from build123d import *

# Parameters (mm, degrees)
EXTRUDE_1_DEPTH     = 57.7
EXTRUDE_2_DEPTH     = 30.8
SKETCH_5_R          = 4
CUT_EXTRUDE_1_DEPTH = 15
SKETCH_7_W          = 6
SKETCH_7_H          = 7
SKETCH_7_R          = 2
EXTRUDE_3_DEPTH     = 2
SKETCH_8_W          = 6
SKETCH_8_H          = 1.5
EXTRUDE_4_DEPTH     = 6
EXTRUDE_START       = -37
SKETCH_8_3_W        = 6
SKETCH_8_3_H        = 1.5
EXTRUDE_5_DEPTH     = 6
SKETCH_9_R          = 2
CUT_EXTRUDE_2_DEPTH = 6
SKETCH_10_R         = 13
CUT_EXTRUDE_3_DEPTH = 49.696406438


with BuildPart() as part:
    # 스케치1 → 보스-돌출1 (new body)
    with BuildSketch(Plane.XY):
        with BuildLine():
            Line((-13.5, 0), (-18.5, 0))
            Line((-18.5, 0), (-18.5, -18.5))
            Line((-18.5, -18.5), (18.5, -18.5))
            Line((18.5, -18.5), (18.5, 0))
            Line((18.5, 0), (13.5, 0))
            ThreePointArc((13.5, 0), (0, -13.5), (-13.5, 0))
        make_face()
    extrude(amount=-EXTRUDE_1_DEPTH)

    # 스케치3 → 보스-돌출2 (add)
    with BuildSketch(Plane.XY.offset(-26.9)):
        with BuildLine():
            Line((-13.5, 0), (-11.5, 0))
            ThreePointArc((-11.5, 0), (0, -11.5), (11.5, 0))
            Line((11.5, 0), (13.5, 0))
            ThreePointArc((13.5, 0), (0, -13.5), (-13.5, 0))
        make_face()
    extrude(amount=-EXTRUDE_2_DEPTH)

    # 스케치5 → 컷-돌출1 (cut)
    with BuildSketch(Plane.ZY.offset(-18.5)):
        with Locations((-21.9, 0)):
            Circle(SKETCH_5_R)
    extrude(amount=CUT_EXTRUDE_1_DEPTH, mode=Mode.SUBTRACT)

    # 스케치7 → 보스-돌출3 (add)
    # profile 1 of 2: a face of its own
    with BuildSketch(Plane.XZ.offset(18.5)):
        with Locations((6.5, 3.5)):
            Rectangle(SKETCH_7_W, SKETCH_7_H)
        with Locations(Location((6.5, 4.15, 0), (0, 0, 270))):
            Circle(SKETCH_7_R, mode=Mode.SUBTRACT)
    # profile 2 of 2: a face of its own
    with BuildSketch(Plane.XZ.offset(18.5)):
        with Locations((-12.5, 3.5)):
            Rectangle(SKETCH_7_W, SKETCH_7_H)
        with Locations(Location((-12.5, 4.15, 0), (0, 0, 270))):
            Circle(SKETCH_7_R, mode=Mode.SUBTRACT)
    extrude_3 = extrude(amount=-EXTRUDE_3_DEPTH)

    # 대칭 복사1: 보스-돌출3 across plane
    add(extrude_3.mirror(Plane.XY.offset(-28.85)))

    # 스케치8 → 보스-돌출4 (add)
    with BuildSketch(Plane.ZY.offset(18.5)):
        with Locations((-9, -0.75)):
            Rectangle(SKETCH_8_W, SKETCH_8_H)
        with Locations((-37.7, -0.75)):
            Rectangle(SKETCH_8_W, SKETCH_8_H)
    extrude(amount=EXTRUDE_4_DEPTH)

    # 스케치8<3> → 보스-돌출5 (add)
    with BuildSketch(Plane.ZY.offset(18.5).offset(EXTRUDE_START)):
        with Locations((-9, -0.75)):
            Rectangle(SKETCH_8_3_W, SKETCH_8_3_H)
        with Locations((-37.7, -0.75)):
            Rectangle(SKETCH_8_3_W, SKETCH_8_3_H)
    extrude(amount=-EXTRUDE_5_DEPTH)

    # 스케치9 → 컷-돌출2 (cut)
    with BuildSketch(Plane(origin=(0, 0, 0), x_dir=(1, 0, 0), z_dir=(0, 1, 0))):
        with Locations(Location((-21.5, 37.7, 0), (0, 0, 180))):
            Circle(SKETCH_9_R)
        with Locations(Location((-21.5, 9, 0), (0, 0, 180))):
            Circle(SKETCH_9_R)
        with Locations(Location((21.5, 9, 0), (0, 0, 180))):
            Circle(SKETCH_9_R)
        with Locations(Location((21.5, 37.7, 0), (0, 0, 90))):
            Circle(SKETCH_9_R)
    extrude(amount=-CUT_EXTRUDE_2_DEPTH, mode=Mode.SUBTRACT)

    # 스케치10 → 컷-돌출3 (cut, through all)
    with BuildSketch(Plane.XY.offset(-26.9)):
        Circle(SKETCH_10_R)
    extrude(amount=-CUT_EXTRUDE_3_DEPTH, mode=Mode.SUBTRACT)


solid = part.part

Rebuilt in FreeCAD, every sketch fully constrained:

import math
import FreeCAD as App
import Part
import Sketcher
from FreeCAD import Vector
Q = App.Units.Quantity

doc = App.newDocument("Part")
body = doc.addObject("PartDesign::Body", "Body")

# Sketch on XY plane
sketch1 = body.newObject("Sketcher::SketchObject", "Sketch")
sketch1.AttachmentSupport = (doc.getObject("XY_Plane"), [""])
sketch1.MapMode = "FlatFace"
sketch1.addGeometry(Part.LineSegment(Vector(-14, 0, 0), Vector(-18, 0, 0)), False)
sketch1.addGeometry(Part.LineSegment(Vector(-18, 0, 0), Vector(-18, -18, 0)), False)
sketch1.addGeometry(Part.LineSegment(Vector(-18, -18, 0), Vector(18, -18, 0)), False)
sketch1.addGeometry(Part.LineSegment(Vector(18, -18, 0), Vector(18, 0, 0)), False)
sketch1.addGeometry(Part.LineSegment(Vector(18, 0, 0), Vector(14, 0, 0)), False)
sketch1.addGeometry(Part.ArcOfCircle(Part.Circle(Vector(0, 0, 0), Vector(0, 0, 1), 14), math.radians(180), math.radians(360)), False)
sketch1.addConstraint(Sketcher.Constraint("Coincident", 0, 2, 1, 1))
sketch1.addConstraint(Sketcher.Constraint("Coincident", 1, 2, 2, 1))
sketch1.addConstraint(Sketcher.Constraint("Coincident", 2, 2, 3, 1))
sketch1.addConstraint(Sketcher.Constraint("Coincident", 3, 2, 4, 1))
sketch1.addConstraint(Sketcher.Constraint("Coincident", 4, 2, 5, 2))
sketch1.addConstraint(Sketcher.Constraint("Coincident", 5, 1, 0, 1))
sketch1.addConstraint(Sketcher.Constraint("Horizontal", 0))
sketch1.addConstraint(Sketcher.Constraint("Vertical", 1))
sketch1.addConstraint(Sketcher.Constraint("Horizontal", 2))
sketch1.addConstraint(Sketcher.Constraint("Vertical", 3))
sketch1.addConstraint(Sketcher.Constraint("Horizontal", 4))
sketch1.addConstraint(Sketcher.Constraint("Coincident", 5, 3, -1, 1))
sketch1.addConstraint(Sketcher.Constraint("Symmetric", 0, 2, 3, 2, -1, 1))
sketch1.addConstraint(Sketcher.Constraint("PointOnObject", 0, 2, -1))
sketch1.addConstraint(Sketcher.Constraint("Radius", 5, Q("13.5 mm")))
sketch1.addConstraint(Sketcher.Constraint("DistanceX", 0, 2, 0, 1, Q("5 mm")))
sketch1.addConstraint(Sketcher.Constraint("DistanceY", 1, 2, 1, 1, Q("18.5 mm")))
pad1 = body.newObject("PartDesign::Pad", "Pad")
pad1.Profile = sketch1
pad1.Length = 57.7
pad1.Reversed = True

# Sketch on XY plane
sketch2 = body.newObject("Sketcher::SketchObject", "Sketch001")
sketch2.AttachmentSupport = (doc.getObject("XY_Plane"), [""])
sketch2.MapMode = "FlatFace"
sketch2.AttachmentOffset = App.Placement(Vector(0, 0, -26.9), App.Rotation())
sketch2.addGeometry(Part.LineSegment(Vector(-11.5, 0, 0), Vector(-13.5, 0, 0)), False)
sketch2.addGeometry(Part.ArcOfCircle(Part.Circle(Vector(0, 0, 0), Vector(0, 0, 1), 13.5), math.radians(180), math.radians(360)), False)
sketch2.addGeometry(Part.LineSegment(Vector(13.5, 0, 0), Vector(11.5, 0, 0)), False)
sketch2.addGeometry(Part.ArcOfCircle(Part.Circle(Vector(0, 0, 0), Vector(0, 0, 1), 11.5), math.radians(180), math.radians(360)), False)
sketch2.addConstraint(Sketcher.Constraint("Coincident", 0, 2, 1, 1))
sketch2.addConstraint(Sketcher.Constraint("Coincident", 1, 2, 2, 1))
sketch2.addConstraint(Sketcher.Constraint("Coincident", 2, 2, 3, 2))
sketch2.addConstraint(Sketcher.Constraint("Coincident", 3, 1, 0, 1))
sketch2.addConstraint(Sketcher.Constraint("Horizontal", 0))
sketch2.addConstraint(Sketcher.Constraint("Horizontal", 2))
sketch2.addConstraint(Sketcher.Constraint("Coincident", 1, 3, -1, 1))
sketch2.addConstraint(Sketcher.Constraint("Coincident", 3, 3, -1, 1))
sketch2.addConstraint(Sketcher.Constraint("PointOnObject", 0, 2, -1))
sketch2.addConstraint(Sketcher.Constraint("PointOnObject", 1, 2, -1))
sketch2.addConstraint(Sketcher.Constraint("Radius", 1, Q("13.5 mm")))
sketch2.addConstraint(Sketcher.Constraint("Radius", 3, Q("11.5 mm")))
pad2 = body.newObject("PartDesign::Pad", "Pad001")
pad2.Profile = sketch2
pad2.Length = 30.8
pad2.Reversed = True

# Sketch on YZ plane
sketch3 = body.newObject("Sketcher::SketchObject", "Sketch002")
sketch3.AttachmentSupport = (doc.getObject("YZ_Plane"), [""])
sketch3.MapMode = "FlatFace"
sketch3.AttachmentOffset = App.Placement(Vector(0, 0, 18.5), App.Rotation())
sketch3.addGeometry(Part.Circle(Vector(0, -21.9, 0), Vector(0, 0, 1), 4), False)
sketch3.addConstraint(Sketcher.Constraint("PointOnObject", 0, 3, -2))
sketch3.addConstraint(Sketcher.Constraint("Diameter", 0, Q("8 mm")))
sketch3.addConstraint(Sketcher.Constraint("DistanceY", 0, 3, -1, 1, Q("21.9 mm")))
pocket1 = body.newObject("PartDesign::Pocket", "Pocket")
pocket1.Profile = sketch3
pocket1.Length = 15

# Sketch on XZ plane
sketch4 = body.newObject("Sketcher::SketchObject", "Sketch003")
sketch4.AttachmentSupport = (doc.getObject("XZ_Plane"), [""])
sketch4.MapMode = "FlatFace"
sketch4.AttachmentOffset = App.Placement(Vector(0, 0, 18.5), App.Rotation())
sketch4.addGeometry(Part.LineSegment(Vector(3.5, 7, 0), Vector(3.5, 0, 0)), False)
sketch4.addGeometry(Part.LineSegment(Vector(3.5, 0, 0), Vector(9.5, 0, 0)), False)
sketch4.addGeometry(Part.LineSegment(Vector(9.5, 0, 0), Vector(9.5, 7, 0)), False)
sketch4.addGeometry(Part.LineSegment(Vector(9.5, 7, 0), Vector(3.5, 7, 0)), False)
sketch4.addGeometry(Part.Circle(Vector(6.5, 4.2, 0), Vector(0, 0, 1), 2), False)
sketch4.addGeometry(Part.LineSegment(Vector(-15.5, 7, 0), Vector(-15.5, 0, 0)), False)
sketch4.addGeometry(Part.LineSegment(Vector(-15.5, 0, 0), Vector(-9.5, 0, 0)), False)
sketch4.addGeometry(Part.LineSegment(Vector(-9.5, 0, 0), Vector(-9.5, 7, 0)), False)
sketch4.addGeometry(Part.LineSegment(Vector(-9.5, 7, 0), Vector(-15.5, 7, 0)), False)
sketch4.addGeometry(Part.Circle(Vector(-12.5, 4.2, 0), Vector(0, 0, 1), 2), False)
sketch4.addConstraint(Sketcher.Constraint("Coincident", 0, 2, 1, 1))
sketch4.addConstraint(Sketcher.Constraint("Coincident", 1, 2, 2, 1))
sketch4.addConstraint(Sketcher.Constraint("Coincident", 2, 2, 3, 1))
sketch4.addConstraint(Sketcher.Constraint("Coincident", 3, 2, 0, 1))
sketch4.addConstraint(Sketcher.Constraint("Coincident", 5, 2, 6, 1))
sketch4.addConstraint(Sketcher.Constraint("Coincident", 6, 2, 7, 1))
sketch4.addConstraint(Sketcher.Constraint("Coincident", 7, 2, 8, 1))
sketch4.addConstraint(Sketcher.Constraint("Coincident", 8, 2, 5, 1))
sketch4.addConstraint(Sketcher.Constraint("Vertical", 0))
sketch4.addConstraint(Sketcher.Constraint("Horizontal", 1))
sketch4.addConstraint(Sketcher.Constraint("Vertical", 2))
sketch4.addConstraint(Sketcher.Constraint("Horizontal", 3))
sketch4.addConstraint(Sketcher.Constraint("Vertical", 5))
sketch4.addConstraint(Sketcher.Constraint("Horizontal", 6))
sketch4.addConstraint(Sketcher.Constraint("Vertical", 7))
sketch4.addConstraint(Sketcher.Constraint("Horizontal", 8))
sketch4.addConstraint(Sketcher.Constraint("Equal", 4, 9))
sketch4.addConstraint(Sketcher.Constraint("Symmetric", 1, 2, 6, 2, -1, 1))
sketch4.addConstraint(Sketcher.Constraint("PointOnObject", 0, 2, -1))
sketch4.addConstraint(Sketcher.Constraint("Horizontal", 4, 3, 9, 3))
sketch4.addConstraint(Sketcher.Constraint("Horizontal", 3, 2, 7, 2))
sketch4.addConstraint(Sketcher.Constraint("Equal", 3, 6))
sketch4.addConstraint(Sketcher.Constraint("Diameter", 4, Q("4 mm")))
sketch4.addConstraint(Sketcher.Constraint("DistanceX", 1, 1, 1, 2, Q("6 mm")))
sketch4.addConstraint(Sketcher.Constraint("DistanceY", 0, 2, 0, 1, Q("7 mm")))
sketch4.addConstraint(Sketcher.Constraint("DistanceX", 9, 3, 4, 3, Q("19 mm")))
sketch4.addConstraint(Sketcher.Constraint("DistanceX", 0, 2, 4, 3, Q("3 mm")))
sketch4.addConstraint(Sketcher.Constraint("DistanceX", 5, 2, 9, 3, Q("3 mm")))
sketch4.addConstraint(Sketcher.Constraint("DistanceY", -1, 1, 4, 3, Q("4.15 mm")))
pad3 = body.newObject("PartDesign::Pad", "Pad002")
pad3.Profile = sketch4
pad3.Length = 2
pad3.Reversed = True
doc.recompute()

datumplane = body.newObject("PartDesign::Plane", "DatumPlane")
datumplane.AttachmentSupport = (doc.getObject("XY_Plane"), [""])
datumplane.MapMode = "FlatFace"
datumplane.AttachmentOffset = App.Placement(Vector(0, 0, -28.85), App.Rotation())
mirrored = body.newObject("PartDesign::Mirrored", "Mirrored")
mirrored.Originals = [pad3]
mirrored.MirrorPlane = (datumplane, [""])
body.Tip = mirrored

# Sketch on YZ plane
sketch5 = body.newObject("Sketcher::SketchObject", "Sketch004")
sketch5.AttachmentSupport = (doc.getObject("YZ_Plane"), [""])
sketch5.MapMode = "FlatFace"
sketch5.AttachmentOffset = App.Placement(Vector(0, 0, -18.5), App.Rotation())
sketch5.addGeometry(Part.LineSegment(Vector(0, -12, 0), Vector(-1.5, -12, 0)), False)
sketch5.addGeometry(Part.LineSegment(Vector(-1.5, -12, 0), Vector(-1.5, -6, 0)), False)
sketch5.addGeometry(Part.LineSegment(Vector(-1.5, -6, 0), Vector(0, -6, 0)), False)
sketch5.addGeometry(Part.LineSegment(Vector(0, -6, 0), Vector(0, -12, 0)), False)
sketch5.addGeometry(Part.LineSegment(Vector(0, -40.7, 0), Vector(-1.5, -40.7, 0)), False)
sketch5.addGeometry(Part.LineSegment(Vector(-1.5, -40.7, 0), Vector(-1.5, -34.7, 0)), False)
sketch5.addGeometry(Part.LineSegment(Vector(-1.5, -34.7, 0), Vector(0, -34.7, 0)), False)
sketch5.addGeometry(Part.LineSegment(Vector(0, -34.7, 0), Vector(0, -40.7, 0)), False)
sketch5.addConstraint(Sketcher.Constraint("Coincident", 0, 2, 1, 1))
sketch5.addConstraint(Sketcher.Constraint("Coincident", 1, 2, 2, 1))
sketch5.addConstraint(Sketcher.Constraint("Coincident", 2, 2, 3, 1))
sketch5.addConstraint(Sketcher.Constraint("Coincident", 3, 2, 0, 1))
sketch5.addConstraint(Sketcher.Constraint("Coincident", 4, 2, 5, 1))
sketch5.addConstraint(Sketcher.Constraint("Coincident", 5, 2, 6, 1))
sketch5.addConstraint(Sketcher.Constraint("Coincident", 6, 2, 7, 1))
sketch5.addConstraint(Sketcher.Constraint("Coincident", 7, 2, 4, 1))
sketch5.addConstraint(Sketcher.Constraint("Horizontal", 0))
sketch5.addConstraint(Sketcher.Constraint("Vertical", 1))
sketch5.addConstraint(Sketcher.Constraint("Horizontal", 2))
sketch5.addConstraint(Sketcher.Constraint("Vertical", 3))
sketch5.addConstraint(Sketcher.Constraint("Horizontal", 4))
sketch5.addConstraint(Sketcher.Constraint("Vertical", 5))
sketch5.addConstraint(Sketcher.Constraint("Horizontal", 6))
sketch5.addConstraint(Sketcher.Constraint("Vertical", 7))
sketch5.addConstraint(Sketcher.Constraint("PointOnObject", 2, 2, -2))
sketch5.addConstraint(Sketcher.Constraint("PointOnObject", 6, 2, -2))
sketch5.addConstraint(Sketcher.Constraint("Vertical", 1, 2, 4, 2))
sketch5.addConstraint(Sketcher.Constraint("Equal", 3, 5))
sketch5.addConstraint(Sketcher.Constraint("DistanceY", 1, 1, 1, 2, Q("6 mm")))
sketch5.addConstraint(Sketcher.Constraint("DistanceX", 0, 2, 0, 1, Q("1.5 mm")))
sketch5.addConstraint(Sketcher.Constraint("DistanceY", 0, 2, -1, 1, Q("12 mm")))
sketch5.addConstraint(Sketcher.Constraint("DistanceY", 4, 2, -1, 1, Q("40.7 mm")))
pad4 = body.newObject("PartDesign::Pad", "Pad003")
pad4.Profile = sketch5
pad4.Length = 6
pad4.Reversed = True

# Sketch on YZ plane
sketch6 = body.newObject("Sketcher::SketchObject", "Sketch005")
sketch6.AttachmentSupport = (doc.getObject("YZ_Plane"), [""])
sketch6.MapMode = "FlatFace"
sketch6.AttachmentOffset = App.Placement(Vector(0, 0, 18.5), App.Rotation())
sketch6.addGeometry(Part.LineSegment(Vector(0, -12, 0), Vector(-1.5, -12, 0)), False)
sketch6.addGeometry(Part.LineSegment(Vector(-1.5, -12, 0), Vector(-1.5, -6, 0)), False)
sketch6.addGeometry(Part.LineSegment(Vector(-1.5, -6, 0), Vector(0, -6, 0)), False)
sketch6.addGeometry(Part.LineSegment(Vector(0, -6, 0), Vector(0, -12, 0)), False)
sketch6.addGeometry(Part.LineSegment(Vector(0, -40.7, 0), Vector(-1.5, -40.7, 0)), False)
sketch6.addGeometry(Part.LineSegment(Vector(-1.5, -40.7, 0), Vector(-1.5, -34.7, 0)), False)
sketch6.addGeometry(Part.LineSegment(Vector(-1.5, -34.7, 0), Vector(0, -34.7, 0)), False)
sketch6.addGeometry(Part.LineSegment(Vector(0, -34.7, 0), Vector(0, -40.7, 0)), False)
sketch6.addConstraint(Sketcher.Constraint("Coincident", 0, 2, 1, 1))
sketch6.addConstraint(Sketcher.Constraint("Coincident", 1, 2, 2, 1))
sketch6.addConstraint(Sketcher.Constraint("Coincident", 2, 2, 3, 1))
sketch6.addConstraint(Sketcher.Constraint("Coincident", 3, 2, 0, 1))
sketch6.addConstraint(Sketcher.Constraint("Coincident", 4, 2, 5, 1))
sketch6.addConstraint(Sketcher.Constraint("Coincident", 5, 2, 6, 1))
sketch6.addConstraint(Sketcher.Constraint("Coincident", 6, 2, 7, 1))
sketch6.addConstraint(Sketcher.Constraint("Coincident", 7, 2, 4, 1))
sketch6.addConstraint(Sketcher.Constraint("Horizontal", 0))
sketch6.addConstraint(Sketcher.Constraint("Vertical", 1))
sketch6.addConstraint(Sketcher.Constraint("Horizontal", 2))
sketch6.addConstraint(Sketcher.Constraint("Vertical", 3))
sketch6.addConstraint(Sketcher.Constraint("Horizontal", 4))
sketch6.addConstraint(Sketcher.Constraint("Vertical", 5))
sketch6.addConstraint(Sketcher.Constraint("Horizontal", 6))
sketch6.addConstraint(Sketcher.Constraint("Vertical", 7))
sketch6.addConstraint(Sketcher.Constraint("PointOnObject", 2, 2, -2))
sketch6.addConstraint(Sketcher.Constraint("PointOnObject", 6, 2, -2))
sketch6.addConstraint(Sketcher.Constraint("Vertical", 1, 2, 4, 2))
sketch6.addConstraint(Sketcher.Constraint("Equal", 3, 5))
sketch6.addConstraint(Sketcher.Constraint("DistanceY", 1, 1, 1, 2, Q("6 mm")))
sketch6.addConstraint(Sketcher.Constraint("DistanceX", 0, 2, 0, 1, Q("1.5 mm")))
sketch6.addConstraint(Sketcher.Constraint("DistanceY", 0, 2, -1, 1, Q("12 mm")))
sketch6.addConstraint(Sketcher.Constraint("DistanceY", 4, 2, -1, 1, Q("40.7 mm")))
pad5 = body.newObject("PartDesign::Pad", "Pad004")
pad5.Profile = sketch6
pad5.Length = 6

# Sketch on XZ plane
sketch7 = body.newObject("Sketcher::SketchObject", "Sketch006")
sketch7.AttachmentSupport = (doc.getObject("XZ_Plane"), [""])
sketch7.MapMode = "FlatFace"
sketch7.addGeometry(Part.Circle(Vector(-21.5, -37.7, 0), Vector(0, 0, 1), 2), False)
sketch7.addGeometry(Part.Circle(Vector(-21.5, -9, 0), Vector(0, 0, 1), 2), False)
sketch7.addGeometry(Part.Circle(Vector(21.5, -9, 0), Vector(0, 0, 1), 2), False)
sketch7.addGeometry(Part.Circle(Vector(21.5, -37.7, 0), Vector(0, 0, 1), 2), False)
sketch7.addConstraint(Sketcher.Constraint("Equal", 0, 1))
sketch7.addConstraint(Sketcher.Constraint("Equal", 1, 2))
sketch7.addConstraint(Sketcher.Constraint("Equal", 2, 3))
sketch7.addConstraint(Sketcher.Constraint("Symmetric", 1, 3, 2, 3, -2))
sketch7.addConstraint(Sketcher.Constraint("Symmetric", 0, 3, 3, 3, -2))
sketch7.addConstraint(Sketcher.Constraint("Vertical", 0, 3, 1, 3))
sketch7.addConstraint(Sketcher.Constraint("Diameter", 0, Q("4 mm")))
sketch7.addConstraint(Sketcher.Constraint("DistanceY", 1, 3, -1, 1, Q("9 mm")))
sketch7.addConstraint(Sketcher.Constraint("DistanceX", 1, 3, 2, 3, Q("43 mm")))
sketch7.addConstraint(Sketcher.Constraint("DistanceY", 0, 3, -1, 1, Q("37.7 mm")))
pocket2 = body.newObject("PartDesign::Pocket", "Pocket001")
pocket2.Profile = sketch7
pocket2.Length = 6
pocket2.Reversed = True

# Sketch on XY plane
sketch8 = body.newObject("Sketcher::SketchObject", "Sketch007")
sketch8.AttachmentSupport = (doc.getObject("XY_Plane"), [""])
sketch8.MapMode = "FlatFace"
sketch8.AttachmentOffset = App.Placement(Vector(0, 0, -26.9), App.Rotation())
sketch8.addGeometry(Part.Circle(Vector(0, 0, 0), Vector(0, 0, 1), 13), False)
sketch8.addConstraint(Sketcher.Constraint("Coincident", 0, 3, -1, 1))
sketch8.addConstraint(Sketcher.Constraint("Diameter", 0, Q("26 mm")))
pocket3 = body.newObject("PartDesign::Pocket", "Pocket002")
pocket3.Profile = sketch8
pocket3.Type = "ThroughAll"

doc.recompute()
